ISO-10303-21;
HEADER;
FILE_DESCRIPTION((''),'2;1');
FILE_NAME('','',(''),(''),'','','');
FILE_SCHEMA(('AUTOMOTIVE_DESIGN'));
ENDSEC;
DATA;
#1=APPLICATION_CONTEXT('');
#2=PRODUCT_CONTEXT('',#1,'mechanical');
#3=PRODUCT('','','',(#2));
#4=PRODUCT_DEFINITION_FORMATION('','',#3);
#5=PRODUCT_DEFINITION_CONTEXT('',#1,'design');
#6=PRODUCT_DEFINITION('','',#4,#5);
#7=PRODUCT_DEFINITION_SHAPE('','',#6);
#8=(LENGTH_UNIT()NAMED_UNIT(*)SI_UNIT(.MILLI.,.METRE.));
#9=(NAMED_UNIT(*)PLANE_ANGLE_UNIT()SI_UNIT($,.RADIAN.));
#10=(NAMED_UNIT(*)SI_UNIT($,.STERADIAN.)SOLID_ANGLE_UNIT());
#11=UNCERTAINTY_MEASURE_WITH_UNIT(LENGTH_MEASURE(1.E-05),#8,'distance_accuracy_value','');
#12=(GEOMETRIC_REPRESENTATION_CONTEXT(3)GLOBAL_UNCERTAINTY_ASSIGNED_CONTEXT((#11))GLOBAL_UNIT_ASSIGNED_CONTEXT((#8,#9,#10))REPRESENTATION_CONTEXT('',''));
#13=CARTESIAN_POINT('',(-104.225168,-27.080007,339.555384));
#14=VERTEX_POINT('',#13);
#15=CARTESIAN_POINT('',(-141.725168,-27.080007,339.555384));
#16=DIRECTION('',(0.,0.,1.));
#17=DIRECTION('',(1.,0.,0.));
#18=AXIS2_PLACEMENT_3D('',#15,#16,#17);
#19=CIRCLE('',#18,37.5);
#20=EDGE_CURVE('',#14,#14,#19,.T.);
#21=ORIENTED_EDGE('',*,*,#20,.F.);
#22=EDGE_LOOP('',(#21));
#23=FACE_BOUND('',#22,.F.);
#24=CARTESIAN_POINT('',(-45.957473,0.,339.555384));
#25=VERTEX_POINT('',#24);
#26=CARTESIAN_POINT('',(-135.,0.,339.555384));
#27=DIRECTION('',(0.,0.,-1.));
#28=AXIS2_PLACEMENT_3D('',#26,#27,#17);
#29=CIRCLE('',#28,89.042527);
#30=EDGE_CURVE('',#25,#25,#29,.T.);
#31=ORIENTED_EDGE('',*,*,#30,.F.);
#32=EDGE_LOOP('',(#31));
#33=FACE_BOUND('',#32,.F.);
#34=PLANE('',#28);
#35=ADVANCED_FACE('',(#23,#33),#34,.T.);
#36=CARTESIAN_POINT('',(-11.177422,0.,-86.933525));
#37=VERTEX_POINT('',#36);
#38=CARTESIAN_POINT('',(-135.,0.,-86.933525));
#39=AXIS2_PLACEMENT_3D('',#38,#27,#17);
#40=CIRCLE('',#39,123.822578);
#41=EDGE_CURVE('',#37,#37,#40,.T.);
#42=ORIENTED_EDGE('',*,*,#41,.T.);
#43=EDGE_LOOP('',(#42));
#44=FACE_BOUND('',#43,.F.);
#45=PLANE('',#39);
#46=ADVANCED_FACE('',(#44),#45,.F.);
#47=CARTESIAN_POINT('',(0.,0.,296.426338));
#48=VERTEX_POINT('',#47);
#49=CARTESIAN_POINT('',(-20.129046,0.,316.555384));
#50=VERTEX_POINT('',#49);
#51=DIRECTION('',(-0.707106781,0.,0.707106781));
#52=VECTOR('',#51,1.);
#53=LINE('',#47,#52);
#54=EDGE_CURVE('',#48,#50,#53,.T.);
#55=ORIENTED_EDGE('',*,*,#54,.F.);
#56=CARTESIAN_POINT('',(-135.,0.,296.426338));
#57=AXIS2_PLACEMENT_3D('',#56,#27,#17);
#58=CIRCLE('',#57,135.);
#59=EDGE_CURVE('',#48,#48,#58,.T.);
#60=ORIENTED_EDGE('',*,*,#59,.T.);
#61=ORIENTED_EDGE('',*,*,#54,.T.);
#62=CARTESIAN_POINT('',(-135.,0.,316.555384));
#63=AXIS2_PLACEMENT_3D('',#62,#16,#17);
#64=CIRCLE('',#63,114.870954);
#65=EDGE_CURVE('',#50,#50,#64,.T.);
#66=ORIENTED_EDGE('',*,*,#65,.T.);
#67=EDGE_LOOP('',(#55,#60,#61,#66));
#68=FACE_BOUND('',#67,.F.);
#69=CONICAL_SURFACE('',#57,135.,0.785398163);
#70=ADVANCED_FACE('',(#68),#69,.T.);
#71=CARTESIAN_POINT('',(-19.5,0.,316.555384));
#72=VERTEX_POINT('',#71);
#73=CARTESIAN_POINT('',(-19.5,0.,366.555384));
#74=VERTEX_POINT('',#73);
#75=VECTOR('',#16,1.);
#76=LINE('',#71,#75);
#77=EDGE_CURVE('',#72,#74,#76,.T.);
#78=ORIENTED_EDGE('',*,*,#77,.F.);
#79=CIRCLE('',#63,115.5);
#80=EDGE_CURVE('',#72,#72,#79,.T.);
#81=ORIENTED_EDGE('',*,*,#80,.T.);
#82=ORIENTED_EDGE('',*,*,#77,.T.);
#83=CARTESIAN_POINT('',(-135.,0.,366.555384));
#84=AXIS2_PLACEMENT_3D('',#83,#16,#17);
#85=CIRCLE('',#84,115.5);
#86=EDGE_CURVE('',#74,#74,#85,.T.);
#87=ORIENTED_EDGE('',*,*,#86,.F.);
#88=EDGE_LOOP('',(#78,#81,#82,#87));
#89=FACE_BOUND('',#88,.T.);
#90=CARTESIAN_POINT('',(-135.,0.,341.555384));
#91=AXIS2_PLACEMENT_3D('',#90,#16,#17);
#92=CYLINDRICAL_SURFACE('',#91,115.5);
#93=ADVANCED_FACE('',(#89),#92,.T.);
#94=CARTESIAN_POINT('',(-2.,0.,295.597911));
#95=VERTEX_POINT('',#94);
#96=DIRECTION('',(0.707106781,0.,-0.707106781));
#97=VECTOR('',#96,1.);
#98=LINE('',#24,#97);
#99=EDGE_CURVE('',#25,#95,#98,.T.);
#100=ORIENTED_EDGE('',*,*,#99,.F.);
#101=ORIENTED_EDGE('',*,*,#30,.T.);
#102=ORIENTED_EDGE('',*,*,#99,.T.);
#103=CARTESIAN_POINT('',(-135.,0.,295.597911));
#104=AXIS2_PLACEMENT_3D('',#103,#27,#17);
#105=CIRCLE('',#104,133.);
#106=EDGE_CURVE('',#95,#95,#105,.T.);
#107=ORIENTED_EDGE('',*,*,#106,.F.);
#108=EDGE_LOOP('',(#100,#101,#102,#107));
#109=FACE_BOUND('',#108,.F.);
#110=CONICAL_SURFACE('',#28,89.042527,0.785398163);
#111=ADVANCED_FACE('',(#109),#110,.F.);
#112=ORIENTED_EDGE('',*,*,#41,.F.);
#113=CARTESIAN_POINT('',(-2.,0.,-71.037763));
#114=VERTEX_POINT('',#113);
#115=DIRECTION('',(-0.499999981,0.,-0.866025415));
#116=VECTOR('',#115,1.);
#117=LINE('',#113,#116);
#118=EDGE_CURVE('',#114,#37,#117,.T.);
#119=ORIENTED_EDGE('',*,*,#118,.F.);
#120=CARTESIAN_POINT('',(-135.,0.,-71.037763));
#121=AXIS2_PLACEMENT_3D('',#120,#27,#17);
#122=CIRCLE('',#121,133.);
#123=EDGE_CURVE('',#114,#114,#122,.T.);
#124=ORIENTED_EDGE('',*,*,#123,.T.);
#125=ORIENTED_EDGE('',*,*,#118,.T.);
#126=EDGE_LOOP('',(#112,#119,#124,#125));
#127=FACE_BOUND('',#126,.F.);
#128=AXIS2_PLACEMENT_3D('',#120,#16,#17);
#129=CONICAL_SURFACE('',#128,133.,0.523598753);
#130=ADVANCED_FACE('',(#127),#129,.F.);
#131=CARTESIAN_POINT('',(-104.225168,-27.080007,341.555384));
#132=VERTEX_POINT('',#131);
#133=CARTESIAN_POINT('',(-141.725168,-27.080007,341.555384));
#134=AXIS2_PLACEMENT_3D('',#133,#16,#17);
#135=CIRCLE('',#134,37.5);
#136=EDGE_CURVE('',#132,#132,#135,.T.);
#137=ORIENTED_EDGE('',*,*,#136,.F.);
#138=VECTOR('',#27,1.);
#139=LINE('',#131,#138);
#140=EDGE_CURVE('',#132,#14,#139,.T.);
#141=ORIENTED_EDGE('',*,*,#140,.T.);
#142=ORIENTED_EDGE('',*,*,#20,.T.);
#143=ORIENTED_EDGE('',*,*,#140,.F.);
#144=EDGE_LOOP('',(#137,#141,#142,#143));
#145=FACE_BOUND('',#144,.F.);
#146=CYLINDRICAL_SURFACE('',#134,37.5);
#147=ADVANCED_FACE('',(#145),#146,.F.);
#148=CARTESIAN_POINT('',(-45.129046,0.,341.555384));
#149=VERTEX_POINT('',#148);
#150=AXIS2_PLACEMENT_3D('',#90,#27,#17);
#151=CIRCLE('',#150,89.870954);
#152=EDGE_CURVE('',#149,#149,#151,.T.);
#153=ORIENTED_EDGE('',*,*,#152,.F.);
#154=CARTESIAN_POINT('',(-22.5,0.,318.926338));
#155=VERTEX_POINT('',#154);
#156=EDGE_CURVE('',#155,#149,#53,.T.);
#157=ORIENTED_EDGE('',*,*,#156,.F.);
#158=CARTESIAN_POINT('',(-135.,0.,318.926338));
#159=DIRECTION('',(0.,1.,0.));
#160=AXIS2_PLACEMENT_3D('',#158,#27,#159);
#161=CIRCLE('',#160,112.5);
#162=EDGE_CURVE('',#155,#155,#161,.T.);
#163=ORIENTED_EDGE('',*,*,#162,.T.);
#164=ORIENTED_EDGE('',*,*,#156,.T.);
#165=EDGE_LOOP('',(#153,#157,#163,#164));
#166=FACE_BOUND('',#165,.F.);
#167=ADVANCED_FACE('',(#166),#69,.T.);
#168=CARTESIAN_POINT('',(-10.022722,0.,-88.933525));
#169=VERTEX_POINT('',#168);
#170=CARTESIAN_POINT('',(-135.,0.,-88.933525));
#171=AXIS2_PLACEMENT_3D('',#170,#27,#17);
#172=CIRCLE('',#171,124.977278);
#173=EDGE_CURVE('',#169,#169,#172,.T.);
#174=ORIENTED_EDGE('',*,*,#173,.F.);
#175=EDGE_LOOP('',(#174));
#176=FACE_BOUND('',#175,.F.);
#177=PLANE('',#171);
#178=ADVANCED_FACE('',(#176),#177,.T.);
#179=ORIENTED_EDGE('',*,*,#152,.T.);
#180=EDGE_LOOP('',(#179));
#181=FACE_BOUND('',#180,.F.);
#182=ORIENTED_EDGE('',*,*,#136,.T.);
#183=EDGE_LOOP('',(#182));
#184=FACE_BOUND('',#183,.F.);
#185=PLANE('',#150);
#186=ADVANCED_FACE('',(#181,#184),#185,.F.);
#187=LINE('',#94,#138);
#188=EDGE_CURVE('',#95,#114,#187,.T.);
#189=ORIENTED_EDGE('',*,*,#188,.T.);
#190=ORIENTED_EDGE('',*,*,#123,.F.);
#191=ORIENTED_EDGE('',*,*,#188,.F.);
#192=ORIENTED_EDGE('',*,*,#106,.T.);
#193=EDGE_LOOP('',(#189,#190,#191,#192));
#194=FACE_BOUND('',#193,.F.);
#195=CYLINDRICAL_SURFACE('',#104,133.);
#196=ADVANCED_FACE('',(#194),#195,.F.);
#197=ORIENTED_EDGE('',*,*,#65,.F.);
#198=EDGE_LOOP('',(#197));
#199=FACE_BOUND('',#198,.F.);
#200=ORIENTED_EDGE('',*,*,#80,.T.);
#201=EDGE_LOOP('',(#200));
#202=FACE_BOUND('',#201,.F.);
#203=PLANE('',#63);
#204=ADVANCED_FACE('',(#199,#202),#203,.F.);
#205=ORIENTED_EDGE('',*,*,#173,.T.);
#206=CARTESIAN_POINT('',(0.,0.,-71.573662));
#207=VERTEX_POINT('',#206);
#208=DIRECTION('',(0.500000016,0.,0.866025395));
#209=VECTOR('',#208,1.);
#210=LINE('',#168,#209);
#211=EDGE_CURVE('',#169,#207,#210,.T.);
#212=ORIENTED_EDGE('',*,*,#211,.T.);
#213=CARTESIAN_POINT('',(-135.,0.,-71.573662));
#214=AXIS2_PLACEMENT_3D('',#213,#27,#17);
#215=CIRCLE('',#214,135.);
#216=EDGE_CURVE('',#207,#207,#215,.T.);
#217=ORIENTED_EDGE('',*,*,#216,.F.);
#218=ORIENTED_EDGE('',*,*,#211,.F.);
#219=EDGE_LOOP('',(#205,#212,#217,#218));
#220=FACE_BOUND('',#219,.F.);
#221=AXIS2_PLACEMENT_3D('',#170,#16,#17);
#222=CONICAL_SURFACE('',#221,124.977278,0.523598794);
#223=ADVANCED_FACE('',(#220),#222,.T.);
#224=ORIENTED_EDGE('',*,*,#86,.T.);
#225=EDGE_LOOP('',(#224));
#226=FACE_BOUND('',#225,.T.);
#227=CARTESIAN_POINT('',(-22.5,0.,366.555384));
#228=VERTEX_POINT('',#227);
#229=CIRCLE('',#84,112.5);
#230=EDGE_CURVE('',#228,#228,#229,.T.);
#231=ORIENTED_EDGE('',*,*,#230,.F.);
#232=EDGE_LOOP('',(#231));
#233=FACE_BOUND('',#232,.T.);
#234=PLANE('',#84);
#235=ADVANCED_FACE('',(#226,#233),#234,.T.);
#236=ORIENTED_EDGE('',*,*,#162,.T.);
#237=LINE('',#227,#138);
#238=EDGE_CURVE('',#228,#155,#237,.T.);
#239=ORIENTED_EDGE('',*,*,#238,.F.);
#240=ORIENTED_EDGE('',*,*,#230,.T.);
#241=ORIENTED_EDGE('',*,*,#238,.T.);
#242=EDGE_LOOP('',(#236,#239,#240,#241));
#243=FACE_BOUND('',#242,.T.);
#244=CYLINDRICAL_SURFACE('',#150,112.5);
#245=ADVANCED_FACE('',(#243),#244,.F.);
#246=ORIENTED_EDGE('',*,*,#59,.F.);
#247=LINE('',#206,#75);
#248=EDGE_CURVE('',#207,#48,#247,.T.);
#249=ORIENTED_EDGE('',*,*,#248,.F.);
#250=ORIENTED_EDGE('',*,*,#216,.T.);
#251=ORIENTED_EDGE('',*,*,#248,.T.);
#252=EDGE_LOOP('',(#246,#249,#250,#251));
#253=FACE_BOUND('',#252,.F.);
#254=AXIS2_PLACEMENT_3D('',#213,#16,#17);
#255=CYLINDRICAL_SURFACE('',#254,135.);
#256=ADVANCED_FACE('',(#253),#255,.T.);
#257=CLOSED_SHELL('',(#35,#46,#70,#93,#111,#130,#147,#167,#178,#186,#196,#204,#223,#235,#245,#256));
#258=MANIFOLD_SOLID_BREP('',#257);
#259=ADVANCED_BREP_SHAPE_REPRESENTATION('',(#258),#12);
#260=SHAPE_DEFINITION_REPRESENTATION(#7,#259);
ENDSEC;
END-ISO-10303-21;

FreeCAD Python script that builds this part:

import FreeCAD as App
import Part
import Sketcher
from FreeCAD import Vector
Q = App.Units.Quantity


def add_polygon(sketch, points):
    """Adds a closed chain of lines whose ends are joined by coincident constraints."""
    first, n = sketch.GeometryCount, len(points)
    for a, b in zip(points, points[1:] + points[:1]):
        sketch.addGeometry(Part.LineSegment(App.Vector(*a, 0), App.Vector(*b, 0)), False)
    for i in range(n):
        sketch.addConstraint(Sketcher.Constraint("Coincident", first + i, 2, first + (i + 1) % n, 1))

doc = App.newDocument("Part")
body = doc.addObject("PartDesign::Body", "Body")

# Sketch on XZ plane
sketch1 = body.newObject("Sketcher::SketchObject", "Sketch")
sketch1.AttachmentSupport = (doc.getObject("XZ_Plane"), [""])
sketch1.MapMode = "FlatFace"
add_polygon(sketch1, [(0, -71.6), (0, 296.4), (-45.1, 341.6), (-135, 341.6), (-135, 339.6), (-46, 339.6), (-2, 295.6), (-2, -71), (-11.2, -86.9), (-135, -86.9), (-135, -88.9), (-10, -88.9)])  # lines 0-11
sketch1.addGeometry(Part.LineSegment(Vector(-135, 341.6, 0), Vector(-135, -88.9, 0)), True)  # axis
sketch1.addConstraint([
    Sketcher.Constraint("Vertical", 0),
    Sketcher.Constraint("Horizontal", 2),
    Sketcher.Constraint("Vertical", 3),
    Sketcher.Constraint("Horizontal", 4),
    Sketcher.Constraint("Vertical", 6),
    Sketcher.Constraint("Horizontal", 8),
    Sketcher.Constraint("Vertical", 9),
    Sketcher.Constraint("Horizontal", 10),
    Sketcher.Constraint("Vertical", 12),
    Sketcher.Constraint("Coincident", 12, 1, 2, 2),
    Sketcher.Constraint("Coincident", 12, 2, 9, 2),
    Sketcher.Constraint("PointOnObject", 0, 2, -2),
    Sketcher.Constraint("Parallel", 1, 5),
    Sketcher.Constraint("Parallel", 7, 11),
    Sketcher.Constraint("Equal", 3, 9),
    Sketcher.Constraint("DistanceY", 0, 1, 0, 2, 368.0),
    Sketcher.Constraint("DistanceY", 3, 2, 3, 1, 2.0),
    Sketcher.Constraint("Angle", 1, Q("135 deg")),
    Sketcher.Constraint("Angle", 7, Q("-119.999999 deg")),
    Sketcher.Constraint("DistanceX", 2, 2, -1, 1, 135.0),
    Sketcher.Constraint("DistanceX", 5, 2, -1, 1, 2.0),
    Sketcher.Constraint("DistanceX", 10, 1, 10, 2, 124.977278),
    Sketcher.Constraint("DistanceY", 12, 2, 12, 1, 430.488909),
    Sketcher.Constraint("DistanceY", 6, 2, 0, 2, 367.464101),
    Sketcher.Constraint("DistanceX", 4, 1, 4, 2, 89.042527),
    Sketcher.Constraint("DistanceY", -1, 1, 0, 2, 296.426338),
])
revolution = body.newObject("PartDesign::Revolution", "Revolution")
revolution.Profile = sketch1
revolution.ReferenceAxis = (sketch1, ["Axis0"])
revolution.Angle = 360

# Sketch on XY plane
sketch2 = body.newObject("Sketcher::SketchObject", "Sketch001")
sketch2.AttachmentSupport = (doc.getObject("XY_Plane"), [""])
sketch2.MapMode = "FlatFace"
sketch2.AttachmentOffset = App.Placement(Vector(0, 0, 341.555384), App.Rotation())
sketch2.addGeometry([
    Part.Circle(Vector(-135, 0, 0), Vector(0, 0, 1), 116),
    Part.Circle(Vector(-135, 0, 0), Vector(0, 0, 1), 112),
], False)
sketch2.addConstraint([
    Sketcher.Constraint("Coincident", 1, 3, 0, 3),
    Sketcher.Constraint("PointOnObject", 0, 3, -1),
    Sketcher.Constraint("Diameter", 0, 231.0),
    Sketcher.Constraint("Diameter", 1, 225.0),
    Sketcher.Constraint("DistanceX", 0, 3, -1, 1, 135.0),
])
pad1 = body.newObject("PartDesign::Pad", "Pad")
pad1.Profile = sketch2
pad1.Length = 50
pad1.Midplane = True

# Sketch on XY plane
sketch3 = body.newObject("Sketcher::SketchObject", "Sketch002")
sketch3.AttachmentSupport = (doc.getObject("XY_Plane"), [""])
sketch3.MapMode = "FlatFace"
sketch3.AttachmentOffset = App.Placement(Vector(0, 0, 341.555384), App.Rotation())
sketch3.addGeometry(Part.Circle(Vector(-142, -27, 0), Vector(0, 0, 1), 38), False)
sketch3.addConstraint([
    Sketcher.Constraint("Diameter", 0, 75.0),
    Sketcher.Constraint("DistanceX", 0, 3, -1, 1, 141.725168),
    Sketcher.Constraint("DistanceY", 0, 3, -1, 1, 27.080007),
])
pocket1 = body.newObject("PartDesign::Pocket", "Pocket")
pocket1.Profile = sketch3
pocket1.Length = 2

doc.recompute()
